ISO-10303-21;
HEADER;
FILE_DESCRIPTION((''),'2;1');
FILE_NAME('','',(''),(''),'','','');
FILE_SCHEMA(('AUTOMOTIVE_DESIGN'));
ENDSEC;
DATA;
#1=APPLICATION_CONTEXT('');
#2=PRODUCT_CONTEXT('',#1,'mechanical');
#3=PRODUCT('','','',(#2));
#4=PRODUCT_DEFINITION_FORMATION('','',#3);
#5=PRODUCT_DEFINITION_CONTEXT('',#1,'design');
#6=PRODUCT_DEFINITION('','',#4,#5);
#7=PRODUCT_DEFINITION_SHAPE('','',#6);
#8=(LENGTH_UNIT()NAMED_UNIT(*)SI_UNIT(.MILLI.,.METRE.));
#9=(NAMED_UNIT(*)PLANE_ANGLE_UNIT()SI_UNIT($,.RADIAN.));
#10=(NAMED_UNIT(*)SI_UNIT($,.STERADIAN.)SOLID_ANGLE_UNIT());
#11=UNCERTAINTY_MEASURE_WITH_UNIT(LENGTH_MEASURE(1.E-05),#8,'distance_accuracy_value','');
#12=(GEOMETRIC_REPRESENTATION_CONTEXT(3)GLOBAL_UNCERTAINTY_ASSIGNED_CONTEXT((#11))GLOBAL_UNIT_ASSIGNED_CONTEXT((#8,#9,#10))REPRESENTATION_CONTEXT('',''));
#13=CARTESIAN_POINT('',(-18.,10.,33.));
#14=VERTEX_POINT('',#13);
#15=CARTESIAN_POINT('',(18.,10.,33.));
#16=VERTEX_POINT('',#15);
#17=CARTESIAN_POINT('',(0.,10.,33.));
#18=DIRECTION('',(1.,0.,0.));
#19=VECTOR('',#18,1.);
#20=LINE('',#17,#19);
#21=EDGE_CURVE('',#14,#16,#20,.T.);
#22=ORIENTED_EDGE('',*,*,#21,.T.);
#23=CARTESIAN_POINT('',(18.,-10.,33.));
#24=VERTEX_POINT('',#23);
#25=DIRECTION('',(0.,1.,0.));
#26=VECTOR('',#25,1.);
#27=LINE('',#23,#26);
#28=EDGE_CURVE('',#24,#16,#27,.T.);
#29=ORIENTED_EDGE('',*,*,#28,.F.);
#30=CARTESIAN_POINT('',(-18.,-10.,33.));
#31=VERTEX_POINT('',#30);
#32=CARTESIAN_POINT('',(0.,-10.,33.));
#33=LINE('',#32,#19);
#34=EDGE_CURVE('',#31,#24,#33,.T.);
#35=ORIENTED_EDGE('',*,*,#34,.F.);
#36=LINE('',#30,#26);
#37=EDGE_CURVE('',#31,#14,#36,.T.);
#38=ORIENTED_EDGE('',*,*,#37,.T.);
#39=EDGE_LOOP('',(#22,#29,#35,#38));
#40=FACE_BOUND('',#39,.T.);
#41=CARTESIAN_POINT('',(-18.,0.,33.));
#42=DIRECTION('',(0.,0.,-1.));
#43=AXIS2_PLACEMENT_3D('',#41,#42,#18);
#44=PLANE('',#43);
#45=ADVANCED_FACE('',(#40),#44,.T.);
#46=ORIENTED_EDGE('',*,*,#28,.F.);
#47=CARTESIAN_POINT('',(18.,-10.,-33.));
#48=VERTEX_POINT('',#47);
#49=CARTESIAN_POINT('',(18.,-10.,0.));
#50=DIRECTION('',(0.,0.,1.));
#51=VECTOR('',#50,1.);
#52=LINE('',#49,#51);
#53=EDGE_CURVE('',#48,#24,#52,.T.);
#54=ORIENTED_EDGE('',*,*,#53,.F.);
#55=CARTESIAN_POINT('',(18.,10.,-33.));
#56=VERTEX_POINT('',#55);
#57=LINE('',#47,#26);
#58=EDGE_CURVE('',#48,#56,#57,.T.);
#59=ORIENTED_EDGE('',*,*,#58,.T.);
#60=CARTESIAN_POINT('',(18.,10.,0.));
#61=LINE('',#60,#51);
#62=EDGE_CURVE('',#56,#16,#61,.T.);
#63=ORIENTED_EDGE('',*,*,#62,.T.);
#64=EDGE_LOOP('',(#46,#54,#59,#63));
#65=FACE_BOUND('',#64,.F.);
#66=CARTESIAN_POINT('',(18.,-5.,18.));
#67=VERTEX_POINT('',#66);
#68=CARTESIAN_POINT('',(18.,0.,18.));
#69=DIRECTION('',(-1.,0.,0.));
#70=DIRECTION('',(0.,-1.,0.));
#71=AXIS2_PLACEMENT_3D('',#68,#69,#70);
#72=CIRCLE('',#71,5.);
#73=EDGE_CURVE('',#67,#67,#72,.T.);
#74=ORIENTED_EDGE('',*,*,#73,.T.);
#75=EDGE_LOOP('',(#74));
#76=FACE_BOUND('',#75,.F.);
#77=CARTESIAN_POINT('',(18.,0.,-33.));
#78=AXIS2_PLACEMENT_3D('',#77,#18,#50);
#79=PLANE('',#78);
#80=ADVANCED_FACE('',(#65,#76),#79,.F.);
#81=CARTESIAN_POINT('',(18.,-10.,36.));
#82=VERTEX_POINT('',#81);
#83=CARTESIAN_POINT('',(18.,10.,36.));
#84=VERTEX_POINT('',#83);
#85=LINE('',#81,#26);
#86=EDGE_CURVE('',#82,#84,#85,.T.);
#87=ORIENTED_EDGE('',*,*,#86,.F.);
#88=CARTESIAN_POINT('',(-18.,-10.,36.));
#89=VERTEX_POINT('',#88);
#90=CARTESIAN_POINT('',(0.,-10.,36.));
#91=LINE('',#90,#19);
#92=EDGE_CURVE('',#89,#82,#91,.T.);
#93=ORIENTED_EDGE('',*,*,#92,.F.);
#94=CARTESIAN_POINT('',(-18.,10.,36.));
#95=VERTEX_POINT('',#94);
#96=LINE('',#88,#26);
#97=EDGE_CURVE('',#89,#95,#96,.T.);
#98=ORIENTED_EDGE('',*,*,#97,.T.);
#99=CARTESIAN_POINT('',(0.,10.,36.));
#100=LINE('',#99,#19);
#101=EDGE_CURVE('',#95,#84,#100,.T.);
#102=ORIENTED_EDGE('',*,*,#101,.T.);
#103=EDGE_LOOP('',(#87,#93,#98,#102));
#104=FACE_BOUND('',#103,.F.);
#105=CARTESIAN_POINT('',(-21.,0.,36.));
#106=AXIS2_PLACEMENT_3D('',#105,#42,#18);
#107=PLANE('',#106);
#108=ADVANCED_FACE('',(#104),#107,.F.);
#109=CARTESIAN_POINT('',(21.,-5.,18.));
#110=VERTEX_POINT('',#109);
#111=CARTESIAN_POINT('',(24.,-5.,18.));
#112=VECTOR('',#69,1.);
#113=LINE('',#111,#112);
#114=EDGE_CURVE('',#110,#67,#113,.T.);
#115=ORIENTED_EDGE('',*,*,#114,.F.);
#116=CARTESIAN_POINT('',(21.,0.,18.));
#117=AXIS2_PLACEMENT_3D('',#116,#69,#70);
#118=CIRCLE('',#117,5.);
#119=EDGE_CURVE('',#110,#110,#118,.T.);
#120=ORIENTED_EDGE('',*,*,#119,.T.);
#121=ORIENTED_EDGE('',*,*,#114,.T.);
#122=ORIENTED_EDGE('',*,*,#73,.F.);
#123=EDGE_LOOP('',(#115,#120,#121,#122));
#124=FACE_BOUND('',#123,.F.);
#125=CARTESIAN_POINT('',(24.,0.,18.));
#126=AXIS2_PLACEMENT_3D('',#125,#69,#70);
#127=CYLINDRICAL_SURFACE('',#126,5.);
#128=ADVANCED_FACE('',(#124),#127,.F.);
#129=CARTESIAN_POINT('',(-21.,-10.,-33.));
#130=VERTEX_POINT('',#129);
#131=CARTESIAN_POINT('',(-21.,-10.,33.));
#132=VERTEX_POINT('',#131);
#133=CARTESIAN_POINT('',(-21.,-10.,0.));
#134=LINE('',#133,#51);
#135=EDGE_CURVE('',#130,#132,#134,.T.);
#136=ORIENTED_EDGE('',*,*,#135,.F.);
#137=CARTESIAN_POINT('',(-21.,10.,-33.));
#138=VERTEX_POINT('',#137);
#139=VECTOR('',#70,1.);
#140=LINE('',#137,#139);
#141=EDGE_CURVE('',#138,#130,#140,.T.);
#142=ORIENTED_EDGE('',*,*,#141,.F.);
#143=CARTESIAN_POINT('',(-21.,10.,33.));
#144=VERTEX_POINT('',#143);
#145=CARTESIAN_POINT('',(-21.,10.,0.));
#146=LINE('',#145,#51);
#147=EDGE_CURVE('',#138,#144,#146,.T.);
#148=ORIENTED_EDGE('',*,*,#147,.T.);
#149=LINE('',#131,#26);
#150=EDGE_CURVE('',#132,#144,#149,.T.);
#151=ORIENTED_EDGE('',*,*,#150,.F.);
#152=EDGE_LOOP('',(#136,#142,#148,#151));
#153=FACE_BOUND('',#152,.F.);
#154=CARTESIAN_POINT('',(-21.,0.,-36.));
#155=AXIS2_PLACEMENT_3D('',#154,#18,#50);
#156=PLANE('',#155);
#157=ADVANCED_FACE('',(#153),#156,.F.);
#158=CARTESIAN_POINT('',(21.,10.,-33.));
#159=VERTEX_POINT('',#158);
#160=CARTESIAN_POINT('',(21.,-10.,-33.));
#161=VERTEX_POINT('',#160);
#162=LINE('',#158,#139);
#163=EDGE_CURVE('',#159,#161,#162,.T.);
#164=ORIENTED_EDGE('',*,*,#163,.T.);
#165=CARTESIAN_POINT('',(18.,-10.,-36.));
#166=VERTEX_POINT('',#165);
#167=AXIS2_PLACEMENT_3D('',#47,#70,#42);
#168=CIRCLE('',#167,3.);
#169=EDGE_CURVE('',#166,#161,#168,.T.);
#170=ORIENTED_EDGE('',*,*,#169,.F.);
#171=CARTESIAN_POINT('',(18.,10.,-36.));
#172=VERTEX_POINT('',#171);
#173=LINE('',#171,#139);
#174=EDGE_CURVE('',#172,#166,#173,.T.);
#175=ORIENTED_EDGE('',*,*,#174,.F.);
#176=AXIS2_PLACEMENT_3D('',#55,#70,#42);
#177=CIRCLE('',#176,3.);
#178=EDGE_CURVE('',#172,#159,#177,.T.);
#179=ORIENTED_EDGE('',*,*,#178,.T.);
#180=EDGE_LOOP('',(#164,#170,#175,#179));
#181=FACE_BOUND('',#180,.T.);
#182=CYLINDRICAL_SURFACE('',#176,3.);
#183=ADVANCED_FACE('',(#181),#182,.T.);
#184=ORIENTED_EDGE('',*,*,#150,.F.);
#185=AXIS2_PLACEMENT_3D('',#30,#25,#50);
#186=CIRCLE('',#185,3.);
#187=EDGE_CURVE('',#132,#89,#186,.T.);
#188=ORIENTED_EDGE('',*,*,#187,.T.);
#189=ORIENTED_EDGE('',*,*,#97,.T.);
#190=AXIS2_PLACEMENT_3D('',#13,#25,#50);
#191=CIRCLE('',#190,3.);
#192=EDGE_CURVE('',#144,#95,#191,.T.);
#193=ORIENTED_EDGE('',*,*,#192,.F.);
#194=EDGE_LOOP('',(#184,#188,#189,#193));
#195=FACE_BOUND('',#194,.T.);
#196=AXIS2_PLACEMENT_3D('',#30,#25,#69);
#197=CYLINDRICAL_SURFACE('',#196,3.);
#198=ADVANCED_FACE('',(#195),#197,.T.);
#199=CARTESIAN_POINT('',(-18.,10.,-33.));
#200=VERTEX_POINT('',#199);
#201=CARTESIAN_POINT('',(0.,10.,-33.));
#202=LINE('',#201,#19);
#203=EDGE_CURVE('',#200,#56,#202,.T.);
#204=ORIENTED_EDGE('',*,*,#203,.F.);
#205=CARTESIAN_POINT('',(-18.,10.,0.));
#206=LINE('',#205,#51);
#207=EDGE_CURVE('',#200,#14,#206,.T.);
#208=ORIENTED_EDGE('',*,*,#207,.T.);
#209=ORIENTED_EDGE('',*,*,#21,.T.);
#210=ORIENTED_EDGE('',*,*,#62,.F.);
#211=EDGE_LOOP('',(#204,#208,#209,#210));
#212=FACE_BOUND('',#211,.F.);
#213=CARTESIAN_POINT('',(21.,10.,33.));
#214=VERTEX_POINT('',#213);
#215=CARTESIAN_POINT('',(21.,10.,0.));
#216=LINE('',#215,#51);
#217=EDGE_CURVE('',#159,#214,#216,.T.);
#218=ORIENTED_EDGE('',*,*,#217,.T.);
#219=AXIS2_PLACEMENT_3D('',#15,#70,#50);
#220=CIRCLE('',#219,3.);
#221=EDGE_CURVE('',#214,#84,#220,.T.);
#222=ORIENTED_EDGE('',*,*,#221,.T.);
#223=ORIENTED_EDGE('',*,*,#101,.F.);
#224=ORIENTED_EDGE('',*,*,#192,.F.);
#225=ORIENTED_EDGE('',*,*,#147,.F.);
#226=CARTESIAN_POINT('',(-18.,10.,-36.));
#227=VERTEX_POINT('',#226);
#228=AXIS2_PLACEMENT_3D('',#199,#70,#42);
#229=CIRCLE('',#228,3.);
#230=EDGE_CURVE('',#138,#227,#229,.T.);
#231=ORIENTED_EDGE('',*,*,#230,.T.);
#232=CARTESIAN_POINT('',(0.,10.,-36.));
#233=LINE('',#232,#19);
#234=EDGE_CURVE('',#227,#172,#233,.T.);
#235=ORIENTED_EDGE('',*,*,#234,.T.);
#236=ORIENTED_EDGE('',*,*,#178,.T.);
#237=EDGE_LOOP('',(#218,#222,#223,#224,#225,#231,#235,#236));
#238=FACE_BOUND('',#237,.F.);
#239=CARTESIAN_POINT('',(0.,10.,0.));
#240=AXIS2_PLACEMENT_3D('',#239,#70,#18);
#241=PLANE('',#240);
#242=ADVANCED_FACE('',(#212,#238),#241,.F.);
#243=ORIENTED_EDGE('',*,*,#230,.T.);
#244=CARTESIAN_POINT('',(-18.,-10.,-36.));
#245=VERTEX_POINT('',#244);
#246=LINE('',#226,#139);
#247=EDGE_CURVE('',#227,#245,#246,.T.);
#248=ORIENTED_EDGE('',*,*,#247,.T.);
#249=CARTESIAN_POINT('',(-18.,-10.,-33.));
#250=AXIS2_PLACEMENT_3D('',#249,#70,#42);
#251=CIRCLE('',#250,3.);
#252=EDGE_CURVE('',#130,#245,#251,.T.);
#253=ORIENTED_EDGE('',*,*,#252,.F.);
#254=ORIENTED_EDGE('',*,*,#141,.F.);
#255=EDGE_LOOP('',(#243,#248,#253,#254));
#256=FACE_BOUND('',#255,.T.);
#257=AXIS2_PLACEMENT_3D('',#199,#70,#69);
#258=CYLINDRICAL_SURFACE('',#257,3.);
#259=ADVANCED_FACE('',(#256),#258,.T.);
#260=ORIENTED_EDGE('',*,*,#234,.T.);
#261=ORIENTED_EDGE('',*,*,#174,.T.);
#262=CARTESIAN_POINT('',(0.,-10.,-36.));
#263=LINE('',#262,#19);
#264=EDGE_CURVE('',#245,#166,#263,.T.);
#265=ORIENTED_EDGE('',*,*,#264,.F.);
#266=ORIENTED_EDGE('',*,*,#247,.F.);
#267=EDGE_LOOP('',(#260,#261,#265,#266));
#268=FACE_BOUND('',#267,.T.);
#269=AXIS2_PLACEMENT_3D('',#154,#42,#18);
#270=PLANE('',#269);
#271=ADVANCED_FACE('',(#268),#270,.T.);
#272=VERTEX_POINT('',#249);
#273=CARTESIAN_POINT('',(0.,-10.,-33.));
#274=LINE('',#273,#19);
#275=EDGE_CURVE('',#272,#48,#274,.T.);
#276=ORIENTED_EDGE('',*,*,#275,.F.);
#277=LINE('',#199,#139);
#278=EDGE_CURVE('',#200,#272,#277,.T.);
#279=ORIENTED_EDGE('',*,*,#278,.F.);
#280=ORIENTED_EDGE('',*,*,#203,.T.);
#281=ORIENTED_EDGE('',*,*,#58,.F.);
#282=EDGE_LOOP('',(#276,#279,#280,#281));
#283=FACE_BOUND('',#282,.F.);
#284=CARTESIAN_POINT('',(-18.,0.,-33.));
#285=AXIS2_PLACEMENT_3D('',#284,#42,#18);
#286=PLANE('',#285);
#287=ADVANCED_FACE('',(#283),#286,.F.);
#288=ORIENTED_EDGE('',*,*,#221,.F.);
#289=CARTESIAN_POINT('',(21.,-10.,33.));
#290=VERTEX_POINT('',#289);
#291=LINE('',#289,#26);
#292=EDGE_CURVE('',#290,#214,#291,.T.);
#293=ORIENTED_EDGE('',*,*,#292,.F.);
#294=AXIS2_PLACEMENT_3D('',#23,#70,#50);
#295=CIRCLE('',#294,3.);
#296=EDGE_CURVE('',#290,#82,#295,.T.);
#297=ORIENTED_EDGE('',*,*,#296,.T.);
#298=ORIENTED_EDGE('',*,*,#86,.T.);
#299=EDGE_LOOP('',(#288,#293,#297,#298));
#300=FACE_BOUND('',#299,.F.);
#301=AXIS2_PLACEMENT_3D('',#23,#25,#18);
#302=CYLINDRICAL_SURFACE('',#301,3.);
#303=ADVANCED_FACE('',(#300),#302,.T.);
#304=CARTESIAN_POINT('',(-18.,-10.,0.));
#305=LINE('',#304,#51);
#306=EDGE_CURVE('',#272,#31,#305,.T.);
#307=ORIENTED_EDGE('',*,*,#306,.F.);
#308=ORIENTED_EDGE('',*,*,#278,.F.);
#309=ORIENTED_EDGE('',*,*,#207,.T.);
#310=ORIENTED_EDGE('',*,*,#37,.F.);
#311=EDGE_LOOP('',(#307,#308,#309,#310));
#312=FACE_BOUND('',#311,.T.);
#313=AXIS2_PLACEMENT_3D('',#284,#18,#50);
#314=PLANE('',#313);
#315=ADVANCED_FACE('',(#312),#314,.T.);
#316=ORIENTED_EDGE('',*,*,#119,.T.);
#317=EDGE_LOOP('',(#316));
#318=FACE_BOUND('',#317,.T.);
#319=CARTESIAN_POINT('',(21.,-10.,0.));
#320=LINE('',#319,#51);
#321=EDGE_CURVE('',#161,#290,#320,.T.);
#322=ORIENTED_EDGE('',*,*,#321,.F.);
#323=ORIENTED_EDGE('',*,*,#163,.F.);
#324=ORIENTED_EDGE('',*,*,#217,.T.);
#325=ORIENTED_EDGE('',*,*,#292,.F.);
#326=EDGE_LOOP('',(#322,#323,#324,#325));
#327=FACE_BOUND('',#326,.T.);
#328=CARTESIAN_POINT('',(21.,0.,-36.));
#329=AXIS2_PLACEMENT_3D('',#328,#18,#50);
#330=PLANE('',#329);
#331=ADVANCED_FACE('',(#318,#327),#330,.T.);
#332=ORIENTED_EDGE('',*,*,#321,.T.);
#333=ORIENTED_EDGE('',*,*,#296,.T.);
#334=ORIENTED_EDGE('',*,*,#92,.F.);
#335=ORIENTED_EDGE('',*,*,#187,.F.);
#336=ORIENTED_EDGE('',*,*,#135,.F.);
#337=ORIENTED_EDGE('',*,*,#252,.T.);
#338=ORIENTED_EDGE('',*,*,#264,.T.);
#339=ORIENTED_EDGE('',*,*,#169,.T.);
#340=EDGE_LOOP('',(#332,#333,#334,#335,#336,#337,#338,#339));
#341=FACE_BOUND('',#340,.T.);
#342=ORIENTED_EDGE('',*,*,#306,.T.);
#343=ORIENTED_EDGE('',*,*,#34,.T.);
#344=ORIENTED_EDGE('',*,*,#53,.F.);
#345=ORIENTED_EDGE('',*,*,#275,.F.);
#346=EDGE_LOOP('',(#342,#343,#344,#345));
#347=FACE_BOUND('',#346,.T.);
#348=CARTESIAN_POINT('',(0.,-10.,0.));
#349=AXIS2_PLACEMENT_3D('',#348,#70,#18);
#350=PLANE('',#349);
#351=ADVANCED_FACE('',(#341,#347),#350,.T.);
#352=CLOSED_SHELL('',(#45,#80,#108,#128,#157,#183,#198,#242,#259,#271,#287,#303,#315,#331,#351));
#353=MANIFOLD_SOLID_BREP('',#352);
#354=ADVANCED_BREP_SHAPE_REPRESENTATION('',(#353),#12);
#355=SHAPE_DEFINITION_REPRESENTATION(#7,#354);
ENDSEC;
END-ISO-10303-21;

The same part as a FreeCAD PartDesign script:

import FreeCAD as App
import Part
import Sketcher

V = App.Vector
Q = App.Units.Quantity


def edges_at(feature, points):
    """Names of the edges that pass closest to the given points."""
    edges = feature.Shape.Edges
    near = lambda p: min(range(len(edges)), key=lambda i: edges[i].distToShape(Part.Vertex(*p))[0])
    return sorted({f"Edge{near(p) + 1}" for p in points})

doc = App.newDocument("Part")
body = doc.addObject("PartDesign::Body", "Body")

# Sketch on XZ plane
sketch1 = body.newObject("Sketcher::SketchObject", "Sketch")
sketch1.AttachmentSupport = (doc.getObject("XZ_Plane"), [""])
sketch1.MapMode = "FlatFace"
sketch1.addGeometry([
    Part.LineSegment(V(-21, 36, 0), V(-21, -36, 0)),  # 0
    Part.LineSegment(V(-21, -36, 0), V(21, -36, 0)),  # 1
    Part.LineSegment(V(21, -36, 0), V(21, 36, 0)),  # 2
    Part.LineSegment(V(21, 36, 0), V(-21, 36, 0)),  # 3
    Part.LineSegment(V(18, -33, 0), V(-18, -33, 0)),  # 4
    Part.LineSegment(V(-18, -33, 0), V(-18, 33, 0)),  # 5
    Part.LineSegment(V(-18, 33, 0), V(18, 33, 0)),  # 6
    Part.LineSegment(V(18, 33, 0), V(18, -33, 0)),  # 7
], False)
sketch1.addConstraint([
    Sketcher.Constraint("Coincident", 0, 2, 1, 1),
    Sketcher.Constraint("Coincident", 1, 2, 2, 1),
    Sketcher.Constraint("Coincident", 2, 2, 3, 1),
    Sketcher.Constraint("Coincident", 3, 2, 0, 1),
    Sketcher.Constraint("Coincident", 4, 2, 5, 1),
    Sketcher.Constraint("Coincident", 5, 2, 6, 1),
    Sketcher.Constraint("Coincident", 6, 2, 7, 1),
    Sketcher.Constraint("Coincident", 7, 2, 4, 1),
    Sketcher.Constraint("Vertical", 0),
    Sketcher.Constraint("Horizontal", 1),
    Sketcher.Constraint("Vertical", 2),
    Sketcher.Constraint("Horizontal", 3),
    Sketcher.Constraint("Horizontal", 4),
    Sketcher.Constraint("Vertical", 5),
    Sketcher.Constraint("Horizontal", 6),
    Sketcher.Constraint("Vertical", 7),
    Sketcher.Constraint("Symmetric", 0, 2, 2, 2, -1, 1),
    Sketcher.Constraint("Symmetric", 4, 2, 6, 2, -1, 1),
    Sketcher.Constraint("DistanceX", 1, 1, 1, 2, Q("42 mm")),
    Sketcher.Constraint("DistanceX", 4, 2, 4, 1, Q("36 mm")),
    Sketcher.Constraint("DistanceY", 0, 2, 0, 1, Q("72 mm")),
    Sketcher.Constraint("DistanceY", 5, 1, 5, 2, Q("66 mm")),
])
pad1 = body.newObject("PartDesign::Pad", "Pad")
pad1.Profile = sketch1
pad1.Length = 20
pad1.Midplane = True
doc.recompute()

fillet = body.newObject("PartDesign::Fillet", "Fillet")
fillet.Base = (pad1, edges_at(pad1, [(21, 0, 36), (-21, 0, 36)]))
fillet.Radius = 3
doc.recompute()

fillet2 = body.newObject("PartDesign::Fillet", "Fillet001")
fillet2.Base = (fillet, edges_at(fillet, [(21, 0, -36), (-21, 0, -36)]))
fillet2.Radius = 3

# Sketch on YZ plane
sketch2 = body.newObject("Sketcher::SketchObject", "Sketch001")
sketch2.AttachmentSupport = (doc.getObject("YZ_Plane"), [""])
sketch2.MapMode = "FlatFace"
sketch2.AttachmentOffset = App.Placement(V(0, 0, 21), App.Rotation())
sketch2.addGeometry(Part.Circle(V(0, 18, 0), V(0, 0, 1), 5), False)
sketch2.addConstraint([
    Sketcher.Constraint("PointOnObject", 0, 3, -2),
    Sketcher.Constraint("Diameter", 0, Q("10 mm")),
    Sketcher.Constraint("DistanceY", -1, 1, 0, 3, Q("18 mm")),
])
doc.recompute()
hole = body.newObject("PartDesign::Hole", "Hole")
hole.Profile = sketch2
hole.ThreadType = "None"
hole.Diameter = 10
hole.DepthType = "Dimension"
hole.Depth = 3
hole.DrillPoint = "Flat"

doc.recompute()
